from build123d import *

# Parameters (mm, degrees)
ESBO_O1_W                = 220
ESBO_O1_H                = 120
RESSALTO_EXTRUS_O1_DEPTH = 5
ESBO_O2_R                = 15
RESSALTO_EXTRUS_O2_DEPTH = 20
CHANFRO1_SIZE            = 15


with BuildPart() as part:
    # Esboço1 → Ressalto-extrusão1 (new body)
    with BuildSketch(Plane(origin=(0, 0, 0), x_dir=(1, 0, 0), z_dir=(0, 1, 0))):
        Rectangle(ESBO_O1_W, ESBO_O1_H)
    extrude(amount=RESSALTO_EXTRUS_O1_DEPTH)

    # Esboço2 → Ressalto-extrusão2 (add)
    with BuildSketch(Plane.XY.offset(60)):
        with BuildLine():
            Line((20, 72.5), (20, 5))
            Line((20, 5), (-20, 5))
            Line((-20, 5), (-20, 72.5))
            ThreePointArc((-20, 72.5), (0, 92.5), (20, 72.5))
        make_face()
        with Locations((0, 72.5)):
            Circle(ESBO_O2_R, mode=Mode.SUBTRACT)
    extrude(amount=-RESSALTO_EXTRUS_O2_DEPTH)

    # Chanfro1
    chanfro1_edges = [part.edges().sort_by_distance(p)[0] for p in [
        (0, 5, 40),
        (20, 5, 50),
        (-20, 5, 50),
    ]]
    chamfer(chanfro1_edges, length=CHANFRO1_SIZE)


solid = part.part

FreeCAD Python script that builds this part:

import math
import FreeCAD as App
import Part
import Sketcher

V = App.Vector


def edges_at(feature, points):
    """Names of the edges that pass closest to the given points."""
    edges = feature.Shape.Edges
    near = lambda p: min(range(len(edges)), key=lambda i: edges[i].distToShape(Part.Vertex(*p))[0])
    return sorted({f"Edge{near(p) + 1}" for p in points})


def add_polygon(sketch, points):
    """Adds a closed chain of lines whose ends are joined by coincident constraints."""
    first, n = sketch.GeometryCount, len(points)
    for a, b in zip(points, points[1:] + points[:1]):
        sketch.addGeometry(Part.LineSegment(App.Vector(*a, 0), App.Vector(*b, 0)), False)
    for i in range(n):
        sketch.addConstraint(Sketcher.Constraint("Coincident", first + i, 2, first + (i + 1) % n, 1))

doc = App.newDocument("Part")
params = doc.addObject("Spreadsheet::Sheet", "Params")
for row, (alias, value) in enumerate([
    ("sketch1_width", "220 mm"),
    ("sketch1_height", "120 mm"),
    ("pad1_length", "5 mm"),
    ("sketch2_diameter", "30 mm"),
    ("sketch2_radius", "20 mm"),
    ("sketch2_height", "67.5 mm"),
    ("pad2_length", "20 mm"),
    ("chamfer_size", "15 mm"),
], start=1):
    params.set(f"A{row}", alias)
    params.set(f"B{row}", "=" + value)
    params.setAlias(f"B{row}", alias)

body = doc.addObject("PartDesign::Body", "Body")

# Sketch on XZ plane
sketch1 = body.newObject("Sketcher::SketchObject", "Sketch")
sketch1.AttachmentSupport = (doc.getObject("XZ_Plane"), [""])
sketch1.MapMode = "FlatFace"
add_polygon(sketch1, [(-110, -60), (-110, 60), (110, 60), (110, -60)])  # lines 0-3
sketch1.addConstraint(Sketcher.Constraint("Vertical", 0))
sketch1.addConstraint(Sketcher.Constraint("Horizontal", 1))
sketch1.addConstraint(Sketcher.Constraint("Vertical", 2))
sketch1.addConstraint(Sketcher.Constraint("Horizontal", 3))
sketch1.addConstraint(Sketcher.Constraint("Symmetric", 0, 2, 2, 2, -1, 1))
sketch1.addConstraint(Sketcher.Constraint("DistanceX", 1, 1, 1, 2, 220.0))
sketch1.addConstraint(Sketcher.Constraint("DistanceY", 0, 1, 0, 2, 120.0))
sketch1.setExpression("Constraints[9]", "Params.sketch1_width")
sketch1.setExpression("Constraints[10]", "Params.sketch1_height")
pad1 = body.newObject("PartDesign::Pad", "Pad")
pad1.Profile = sketch1
pad1.setExpression("Length", "Params.pad1_length")
pad1.Reversed = True

# Sketch on XY plane
sketch2 = body.newObject("Sketcher::SketchObject", "Sketch001")
sketch2.AttachmentSupport = (doc.getObject("XY_Plane"), [""])
sketch2.MapMode = "FlatFace"
sketch2.AttachmentOffset = App.Placement(V(0, 0, 60), App.Rotation())
sketch2.addGeometry(Part.LineSegment(V(20, 5, 0), V(20, 72, 0)), False)
sketch2.addGeometry(Part.ArcOfCircle(Part.Circle(V(0, 72, 0), V(0, 0, 1), 20), math.radians(0), math.radians(180)), False)
sketch2.addGeometry(Part.LineSegment(V(-20, 72, 0), V(-20, 5, 0)), False)
sketch2.addGeometry(Part.LineSegment(V(-20, 5, 0), V(20, 5, 0)), False)
sketch2.addGeometry(Part.Circle(V(0, 72, 0), V(0, 0, 1), 15), False)
sketch2.addConstraint(Sketcher.Constraint("Tangent", 0, 2, 1, 1))
sketch2.addConstraint(Sketcher.Constraint("Tangent", 1, 2, 2, 1))
sketch2.addConstraint(Sketcher.Constraint("Coincident", 2, 2, 3, 1))
sketch2.addConstraint(Sketcher.Constraint("Coincident", 3, 2, 0, 1))
sketch2.addConstraint(Sketcher.Constraint("Vertical", 0))
sketch2.addConstraint(Sketcher.Constraint("Vertical", 2))
sketch2.addConstraint(Sketcher.Constraint("Horizontal", 3))
sketch2.addConstraint(Sketcher.Constraint("Coincident", 4, 3, 1, 3))
sketch2.addConstraint(Sketcher.Constraint("PointOnObject", 1, 3, -2))
sketch2.addConstraint(Sketcher.Constraint("Diameter", 4, 30.0))
sketch2.addConstraint(Sketcher.Constraint("Radius", 1, 20.0))
sketch2.addConstraint(Sketcher.Constraint("DistanceY", 0, 1, 0, 2, 67.5))
sketch2.addConstraint(Sketcher.Constraint("DistanceY", -1, 1, 2, 2, 5.0))
sketch2.setExpression("Constraints[9]", "Params.sketch2_diameter")
sketch2.setExpression("Constraints[10]", "Params.sketch2_radius")
sketch2.setExpression("Constraints[11]", "Params.sketch2_height")
pad2 = body.newObject("PartDesign::Pad", "Pad001")
pad2.Profile = sketch2
pad2.setExpression("Length", "Params.pad2_length")
pad2.Reversed = True
doc.recompute()

chamfer = body.newObject("PartDesign::Chamfer", "Chamfer")
chamfer.Base = (pad2, edges_at(pad2, [(0, 5, 40), (20, 5, 50), (-20, 5, 50)]))
chamfer.setExpression("Size", "Params.chamfer_size")

doc.recompute()
